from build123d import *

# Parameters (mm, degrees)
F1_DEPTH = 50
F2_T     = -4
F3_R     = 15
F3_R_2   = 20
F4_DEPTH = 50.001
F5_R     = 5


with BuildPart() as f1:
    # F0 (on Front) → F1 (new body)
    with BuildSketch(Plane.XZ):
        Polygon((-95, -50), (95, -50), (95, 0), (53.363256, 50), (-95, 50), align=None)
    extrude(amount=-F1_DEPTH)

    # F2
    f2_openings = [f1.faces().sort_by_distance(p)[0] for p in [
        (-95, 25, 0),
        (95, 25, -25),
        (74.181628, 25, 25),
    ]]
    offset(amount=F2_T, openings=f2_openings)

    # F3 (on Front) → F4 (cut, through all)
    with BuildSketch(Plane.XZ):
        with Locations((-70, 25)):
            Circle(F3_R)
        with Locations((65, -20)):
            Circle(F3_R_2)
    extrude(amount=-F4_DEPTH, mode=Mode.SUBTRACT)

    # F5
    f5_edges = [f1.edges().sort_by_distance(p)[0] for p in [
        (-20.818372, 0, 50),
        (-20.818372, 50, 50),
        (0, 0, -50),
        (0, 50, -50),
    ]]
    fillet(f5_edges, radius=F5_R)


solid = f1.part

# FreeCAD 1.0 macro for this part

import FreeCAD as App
import Part
import Sketcher

V = App.Vector
Q = App.Units.Quantity


def edges_at(feature, points):
    """Names of the edges that pass closest to the given points."""
    edges = feature.Shape.Edges
    near = lambda p: min(range(len(edges)), key=lambda i: edges[i].distToShape(Part.Vertex(*p))[0])
    return sorted({f"Edge{near(p) + 1}" for p in points})


def faces_at(feature, points):
    """Names of the faces that lie closest to the given points."""
    faces = feature.Shape.Faces
    near = lambda p: min(range(len(faces)), key=lambda i: faces[i].distToShape(Part.Vertex(*p))[0])
    return sorted({f"Face{near(p) + 1}" for p in points})


def add_polygon(sketch, points):
    """Adds a closed chain of lines whose ends are joined by coincident constraints."""
    first, n = sketch.GeometryCount, len(points)
    for a, b in zip(points, points[1:] + points[:1]):
        sketch.addGeometry(Part.LineSegment(App.Vector(*a, 0), App.Vector(*b, 0)), False)
    for i in range(n):
        sketch.addConstraint(Sketcher.Constraint("Coincident", first + i, 2, first + (i + 1) % n, 1))

doc = App.newDocument("Part")
body = doc.addObject("PartDesign::Body", "Body")

# Sketch on XZ plane
sketch1 = body.newObject("Sketcher::SketchObject", "Sketch")
sketch1.AttachmentSupport = (doc.getObject("XZ_Plane"), [""])
sketch1.MapMode = "FlatFace"
add_polygon(sketch1, [(-95, -50), (95, -50), (95, 0), (53.363256, 50), (-95, 50)])  # lines 0-4
sketch1.addConstraint(Sketcher.Constraint("Horizontal", 0))
sketch1.addConstraint(Sketcher.Constraint("Vertical", 1))
sketch1.addConstraint(Sketcher.Constraint("Horizontal", 3))
sketch1.addConstraint(Sketcher.Constraint("Vertical", 4))
sketch1.addConstraint(Sketcher.Constraint("Symmetric", 0, 2, 3, 2, -1, 1))
sketch1.addConstraint(Sketcher.Constraint("PointOnObject", 1, 2, -1))
sketch1.addConstraint(Sketcher.Constraint("DistanceX", 0, 1, 0, 2, Q("190 mm")))
sketch1.addConstraint(Sketcher.Constraint("DistanceY", 1, 1, 1, 2, Q("50 mm")))
sketch1.addConstraint(Sketcher.Constraint("DistanceX", 3, 2, 3, 1, Q("148.363256 mm")))
pad1 = body.newObject("PartDesign::Pad", "Pad")
pad1.Profile = sketch1
pad1.Length = 50
pad1.Reversed = True
doc.recompute()

thickness = body.newObject("PartDesign::Thickness", "Thickness")
thickness.Base = (pad1, faces_at(pad1, [(-95, 25, 0), (95, 25, -25), (74.182, 25, 25)]))
thickness.Value = 4
thickness.Reversed = True
thickness.Join = "Arc"

# Sketch on XZ plane
sketch2 = body.newObject("Sketcher::SketchObject", "Sketch001")
sketch2.AttachmentSupport = (doc.getObject("XZ_Plane"), [""])
sketch2.MapMode = "FlatFace"
sketch2.addGeometry(Part.Circle(V(-70, 25, 0), V(0, 0, 1), 15), False)
sketch2.addGeometry(Part.Circle(V(65, -20, 0), V(0, 0, 1), 20), False)
sketch2.addConstraint(Sketcher.Constraint("Diameter", 0, Q("30 mm")))
sketch2.addConstraint(Sketcher.Constraint("Diameter", 1, Q("40 mm")))
sketch2.addConstraint(Sketcher.Constraint("DistanceX", 0, 3, -1, 1, Q("70 mm")))
sketch2.addConstraint(Sketcher.Constraint("DistanceY", -1, 1, 0, 3, Q("25 mm")))
sketch2.addConstraint(Sketcher.Constraint("DistanceX", -1, 1, 1, 3, Q("65 mm")))
sketch2.addConstraint(Sketcher.Constraint("DistanceY", 1, 3, -1, 1, Q("20 mm")))
pocket1 = body.newObject("PartDesign::Pocket", "Pocket")
pocket1.Profile = sketch2
pocket1.Type = "ThroughAll"
doc.recompute()

fillet = body.newObject("PartDesign::Fillet", "Fillet")
fillet.Base = (pocket1, edges_at(pocket1, [
    (-20.818, 0, 50),
    (-20.818, 50, 50),
    (0, 0, -50),
    (0, 50, -50),
]))
fillet.Radius = 5

doc.recompute()
